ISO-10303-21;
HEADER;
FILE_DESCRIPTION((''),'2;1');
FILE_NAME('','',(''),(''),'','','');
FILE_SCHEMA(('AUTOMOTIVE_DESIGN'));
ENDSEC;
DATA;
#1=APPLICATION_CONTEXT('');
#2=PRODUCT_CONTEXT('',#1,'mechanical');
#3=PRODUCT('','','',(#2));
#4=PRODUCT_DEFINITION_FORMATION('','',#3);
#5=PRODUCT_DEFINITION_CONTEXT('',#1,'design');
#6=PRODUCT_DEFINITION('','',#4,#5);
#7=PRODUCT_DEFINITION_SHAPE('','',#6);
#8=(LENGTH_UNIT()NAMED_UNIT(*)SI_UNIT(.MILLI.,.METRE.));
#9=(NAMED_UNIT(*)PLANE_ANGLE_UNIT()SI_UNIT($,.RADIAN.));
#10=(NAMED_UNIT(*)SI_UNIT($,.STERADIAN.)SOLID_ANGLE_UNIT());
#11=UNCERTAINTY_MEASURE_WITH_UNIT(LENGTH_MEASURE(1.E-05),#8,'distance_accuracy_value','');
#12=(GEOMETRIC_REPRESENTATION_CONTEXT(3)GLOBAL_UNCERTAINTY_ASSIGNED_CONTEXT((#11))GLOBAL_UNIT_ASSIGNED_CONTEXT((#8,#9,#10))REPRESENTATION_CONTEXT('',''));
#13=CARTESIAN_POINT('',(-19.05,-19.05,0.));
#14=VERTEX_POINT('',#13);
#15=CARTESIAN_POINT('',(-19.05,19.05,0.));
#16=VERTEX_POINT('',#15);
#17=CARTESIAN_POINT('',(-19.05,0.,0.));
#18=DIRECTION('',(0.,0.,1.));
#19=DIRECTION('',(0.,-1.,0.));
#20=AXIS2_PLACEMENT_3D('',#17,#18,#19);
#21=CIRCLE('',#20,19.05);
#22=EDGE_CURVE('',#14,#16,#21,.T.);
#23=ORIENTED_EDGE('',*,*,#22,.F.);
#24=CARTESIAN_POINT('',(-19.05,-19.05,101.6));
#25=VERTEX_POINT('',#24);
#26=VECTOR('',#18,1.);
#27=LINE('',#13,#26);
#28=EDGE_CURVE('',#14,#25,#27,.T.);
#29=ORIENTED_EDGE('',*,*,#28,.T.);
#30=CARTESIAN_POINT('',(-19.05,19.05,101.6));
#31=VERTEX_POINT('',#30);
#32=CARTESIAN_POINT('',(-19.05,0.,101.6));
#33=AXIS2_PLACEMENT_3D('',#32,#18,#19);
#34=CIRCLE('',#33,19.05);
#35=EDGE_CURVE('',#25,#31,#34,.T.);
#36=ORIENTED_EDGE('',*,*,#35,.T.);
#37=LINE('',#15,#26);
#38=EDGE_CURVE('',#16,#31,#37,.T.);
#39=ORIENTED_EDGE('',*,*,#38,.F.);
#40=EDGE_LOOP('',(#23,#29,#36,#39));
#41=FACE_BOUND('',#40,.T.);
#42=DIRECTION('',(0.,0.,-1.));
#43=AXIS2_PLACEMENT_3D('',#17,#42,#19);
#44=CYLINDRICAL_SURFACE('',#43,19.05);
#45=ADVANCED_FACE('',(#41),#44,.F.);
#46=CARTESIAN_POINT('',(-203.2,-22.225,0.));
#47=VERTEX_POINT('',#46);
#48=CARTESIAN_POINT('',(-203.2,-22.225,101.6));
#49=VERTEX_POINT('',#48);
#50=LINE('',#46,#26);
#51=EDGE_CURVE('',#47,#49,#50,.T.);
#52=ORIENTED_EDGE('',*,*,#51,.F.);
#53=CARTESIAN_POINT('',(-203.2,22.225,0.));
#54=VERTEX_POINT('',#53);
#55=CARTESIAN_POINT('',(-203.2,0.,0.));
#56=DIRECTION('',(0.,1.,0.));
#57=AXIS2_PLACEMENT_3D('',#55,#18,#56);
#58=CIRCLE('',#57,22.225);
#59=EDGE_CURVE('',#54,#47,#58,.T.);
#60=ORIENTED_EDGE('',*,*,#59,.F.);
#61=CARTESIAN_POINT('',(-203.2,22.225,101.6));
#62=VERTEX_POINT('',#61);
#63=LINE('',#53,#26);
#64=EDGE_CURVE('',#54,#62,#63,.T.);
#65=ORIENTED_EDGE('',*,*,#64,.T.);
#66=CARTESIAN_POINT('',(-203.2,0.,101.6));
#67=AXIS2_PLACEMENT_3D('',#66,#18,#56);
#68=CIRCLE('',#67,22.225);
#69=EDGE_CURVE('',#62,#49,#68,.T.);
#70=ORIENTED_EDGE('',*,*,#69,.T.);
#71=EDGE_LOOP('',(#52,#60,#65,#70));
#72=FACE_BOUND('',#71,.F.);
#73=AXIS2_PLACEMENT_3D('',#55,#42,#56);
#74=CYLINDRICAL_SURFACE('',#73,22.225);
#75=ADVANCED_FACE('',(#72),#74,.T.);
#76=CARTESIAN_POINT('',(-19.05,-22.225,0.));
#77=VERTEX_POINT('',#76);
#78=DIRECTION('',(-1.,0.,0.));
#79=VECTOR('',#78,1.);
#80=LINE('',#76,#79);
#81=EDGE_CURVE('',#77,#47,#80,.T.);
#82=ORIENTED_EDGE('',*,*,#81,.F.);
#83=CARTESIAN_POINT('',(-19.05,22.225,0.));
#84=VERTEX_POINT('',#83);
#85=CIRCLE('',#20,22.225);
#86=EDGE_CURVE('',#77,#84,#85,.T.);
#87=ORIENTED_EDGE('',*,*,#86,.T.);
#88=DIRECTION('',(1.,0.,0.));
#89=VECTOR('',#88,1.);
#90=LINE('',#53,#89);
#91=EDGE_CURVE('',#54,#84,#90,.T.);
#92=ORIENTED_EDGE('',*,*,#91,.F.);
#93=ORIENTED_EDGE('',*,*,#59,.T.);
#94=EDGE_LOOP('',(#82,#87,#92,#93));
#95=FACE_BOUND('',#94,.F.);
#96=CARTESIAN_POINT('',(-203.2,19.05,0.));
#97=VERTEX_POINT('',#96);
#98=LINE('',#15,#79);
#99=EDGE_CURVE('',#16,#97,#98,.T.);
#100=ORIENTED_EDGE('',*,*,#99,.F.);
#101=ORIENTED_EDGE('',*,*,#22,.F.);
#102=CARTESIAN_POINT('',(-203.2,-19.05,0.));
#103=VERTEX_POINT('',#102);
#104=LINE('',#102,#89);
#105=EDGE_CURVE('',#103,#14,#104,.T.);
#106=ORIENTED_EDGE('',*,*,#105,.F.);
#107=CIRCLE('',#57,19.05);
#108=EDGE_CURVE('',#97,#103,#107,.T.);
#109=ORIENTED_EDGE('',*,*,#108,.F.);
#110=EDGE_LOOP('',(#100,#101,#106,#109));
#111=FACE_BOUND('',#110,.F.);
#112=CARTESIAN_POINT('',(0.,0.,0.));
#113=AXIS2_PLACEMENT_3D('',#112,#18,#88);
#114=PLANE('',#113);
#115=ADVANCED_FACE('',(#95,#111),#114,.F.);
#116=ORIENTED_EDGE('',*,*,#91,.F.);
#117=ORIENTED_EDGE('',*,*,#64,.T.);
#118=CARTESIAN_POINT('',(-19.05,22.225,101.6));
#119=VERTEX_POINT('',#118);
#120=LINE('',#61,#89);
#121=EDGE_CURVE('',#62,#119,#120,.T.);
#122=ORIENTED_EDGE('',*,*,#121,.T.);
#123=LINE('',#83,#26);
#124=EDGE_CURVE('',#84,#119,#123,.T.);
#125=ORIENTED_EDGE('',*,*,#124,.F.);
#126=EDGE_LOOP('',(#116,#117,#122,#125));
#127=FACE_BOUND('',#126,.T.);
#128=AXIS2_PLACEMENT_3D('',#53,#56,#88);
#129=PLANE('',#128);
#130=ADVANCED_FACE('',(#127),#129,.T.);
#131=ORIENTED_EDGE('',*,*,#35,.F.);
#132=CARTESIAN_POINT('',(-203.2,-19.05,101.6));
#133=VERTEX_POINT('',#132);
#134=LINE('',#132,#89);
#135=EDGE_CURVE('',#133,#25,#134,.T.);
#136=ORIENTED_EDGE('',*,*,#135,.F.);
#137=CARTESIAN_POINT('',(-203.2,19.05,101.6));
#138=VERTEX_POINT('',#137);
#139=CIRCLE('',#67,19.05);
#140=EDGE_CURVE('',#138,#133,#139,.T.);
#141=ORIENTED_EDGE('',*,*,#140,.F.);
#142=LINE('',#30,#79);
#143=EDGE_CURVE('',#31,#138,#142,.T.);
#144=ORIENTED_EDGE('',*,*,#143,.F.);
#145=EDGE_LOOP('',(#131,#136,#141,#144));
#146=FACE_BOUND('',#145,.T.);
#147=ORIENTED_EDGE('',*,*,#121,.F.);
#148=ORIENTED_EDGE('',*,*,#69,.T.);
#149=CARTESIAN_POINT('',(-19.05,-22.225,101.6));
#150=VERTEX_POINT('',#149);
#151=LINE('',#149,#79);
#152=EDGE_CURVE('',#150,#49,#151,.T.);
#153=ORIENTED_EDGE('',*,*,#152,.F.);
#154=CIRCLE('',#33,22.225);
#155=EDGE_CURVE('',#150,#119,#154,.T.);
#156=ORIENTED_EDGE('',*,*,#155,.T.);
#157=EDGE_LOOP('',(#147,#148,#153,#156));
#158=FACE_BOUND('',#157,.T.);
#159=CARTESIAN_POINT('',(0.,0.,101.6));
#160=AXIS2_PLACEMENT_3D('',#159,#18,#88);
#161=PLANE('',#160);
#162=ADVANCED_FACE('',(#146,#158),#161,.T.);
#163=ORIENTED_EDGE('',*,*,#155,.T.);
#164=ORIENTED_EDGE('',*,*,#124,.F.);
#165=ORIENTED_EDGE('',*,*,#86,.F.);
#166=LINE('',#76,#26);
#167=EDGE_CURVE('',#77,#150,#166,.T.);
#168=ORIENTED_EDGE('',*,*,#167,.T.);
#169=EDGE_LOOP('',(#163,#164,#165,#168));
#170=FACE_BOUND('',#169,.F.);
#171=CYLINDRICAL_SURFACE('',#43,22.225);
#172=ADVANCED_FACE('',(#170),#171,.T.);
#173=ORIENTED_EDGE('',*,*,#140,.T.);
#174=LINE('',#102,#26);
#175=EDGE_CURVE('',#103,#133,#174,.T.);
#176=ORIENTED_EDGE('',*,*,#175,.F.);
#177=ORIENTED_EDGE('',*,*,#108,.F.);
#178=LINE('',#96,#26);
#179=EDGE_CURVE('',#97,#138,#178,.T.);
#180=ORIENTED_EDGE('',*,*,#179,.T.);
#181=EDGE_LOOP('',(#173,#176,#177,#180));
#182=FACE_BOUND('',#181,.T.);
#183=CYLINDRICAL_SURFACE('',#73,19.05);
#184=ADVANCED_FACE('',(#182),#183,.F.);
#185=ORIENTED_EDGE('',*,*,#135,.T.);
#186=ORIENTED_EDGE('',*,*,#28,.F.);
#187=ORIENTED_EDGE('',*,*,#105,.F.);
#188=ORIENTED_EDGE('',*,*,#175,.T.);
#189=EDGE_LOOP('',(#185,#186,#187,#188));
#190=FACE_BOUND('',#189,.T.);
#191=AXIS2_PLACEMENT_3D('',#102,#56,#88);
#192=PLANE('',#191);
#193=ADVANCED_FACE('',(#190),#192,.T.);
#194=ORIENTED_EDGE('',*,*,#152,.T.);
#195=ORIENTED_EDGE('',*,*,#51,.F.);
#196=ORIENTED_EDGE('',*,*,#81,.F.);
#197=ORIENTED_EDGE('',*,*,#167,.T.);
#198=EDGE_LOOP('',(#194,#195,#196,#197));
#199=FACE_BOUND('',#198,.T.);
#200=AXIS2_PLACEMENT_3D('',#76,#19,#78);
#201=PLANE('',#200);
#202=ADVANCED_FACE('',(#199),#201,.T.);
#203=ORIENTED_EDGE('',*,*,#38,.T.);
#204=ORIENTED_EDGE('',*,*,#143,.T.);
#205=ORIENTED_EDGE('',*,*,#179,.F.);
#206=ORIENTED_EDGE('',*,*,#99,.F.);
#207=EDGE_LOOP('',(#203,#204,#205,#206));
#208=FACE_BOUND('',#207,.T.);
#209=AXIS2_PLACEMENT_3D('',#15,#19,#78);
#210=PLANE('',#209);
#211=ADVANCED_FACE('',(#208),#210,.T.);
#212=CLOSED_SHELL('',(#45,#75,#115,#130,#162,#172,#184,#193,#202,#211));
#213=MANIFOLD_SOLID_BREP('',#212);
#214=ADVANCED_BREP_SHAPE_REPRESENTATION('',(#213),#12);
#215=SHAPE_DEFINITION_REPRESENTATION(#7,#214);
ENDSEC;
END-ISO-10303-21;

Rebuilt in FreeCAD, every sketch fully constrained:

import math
import FreeCAD as App
import Part
import Sketcher
Q = App.Units.Quantity

doc = App.newDocument("Part")
body = doc.addObject("PartDesign::Body", "Body")

sketch1 = doc.addObject("Sketcher::SketchObject", "Sketch")
body.addObject(sketch1)
sketch1.AttachmentSupport = (doc.XY_Plane, [""])
sketch1.MapMode = "FlatFace"
sketch1.addGeometry([
    Part.LineSegment(App.Vector(-19, 22, 0), App.Vector(-203, 22, 0)),
    Part.ArcOfCircle(Part.Circle(App.Vector(-203, 0, 0), App.Vector(0, 0, 1), 22), math.radians(90), math.radians(270)),
    Part.LineSegment(App.Vector(-203, -22, 0), App.Vector(-19, -22, 0)),
    Part.ArcOfCircle(Part.Circle(App.Vector(-19, 0, 0), App.Vector(0, 0, 1), 22), math.radians(-90), math.radians(90)),
    Part.LineSegment(App.Vector(-203, 19, 0), App.Vector(-19, 19, 0)),
    Part.ArcOfCircle(Part.Circle(App.Vector(-19, 0, 0), App.Vector(0, 0, 1), 19), math.radians(-90), math.radians(90)),
    Part.LineSegment(App.Vector(-19, -19, 0), App.Vector(-203, -19, 0)),
    Part.ArcOfCircle(Part.Circle(App.Vector(-203, 0, 0), App.Vector(0, 0, 1), 19), math.radians(90), math.radians(270)),
], False)
sketch1.addConstraint([
    Sketcher.Constraint("Tangent", 0, 2, 1, 1),
    Sketcher.Constraint("Tangent", 1, 2, 2, 1),
    Sketcher.Constraint("Tangent", 2, 2, 3, 1),
    Sketcher.Constraint("Tangent", 3, 2, 0, 1),
    Sketcher.Constraint("Tangent", 4, 2, 5, 2),
    Sketcher.Constraint("Tangent", 5, 1, 6, 1),
    Sketcher.Constraint("Tangent", 6, 2, 7, 2),
    Sketcher.Constraint("Tangent", 7, 1, 4, 1),
    Sketcher.Constraint("Horizontal", 0),
    Sketcher.Constraint("Horizontal", 2),
    Sketcher.Constraint("Horizontal", 4),
    Sketcher.Constraint("Horizontal", 6),
    Sketcher.Constraint("Coincident", 5, 3, 3, 3),
    Sketcher.Constraint("PointOnObject", 1, 3, -1),
    Sketcher.Constraint("Vertical", 7, 3, 0, 2),
    Sketcher.Constraint("Radius", 5, Q("0.75 in")),
    Sketcher.Constraint("DistanceX", 1, 3, -1, 1, Q("8 in")),
    Sketcher.Constraint("Radius", 1, Q("0.875 in")),
    Sketcher.Constraint("DistanceX", 0, 2, 0, 1, Q("7.25 in")),
])
pad1 = doc.addObject("PartDesign::Pad", "Pad")
body.addObject(pad1)
pad1.Profile = sketch1
pad1.Length = Q("4 in")

doc.recompute()
